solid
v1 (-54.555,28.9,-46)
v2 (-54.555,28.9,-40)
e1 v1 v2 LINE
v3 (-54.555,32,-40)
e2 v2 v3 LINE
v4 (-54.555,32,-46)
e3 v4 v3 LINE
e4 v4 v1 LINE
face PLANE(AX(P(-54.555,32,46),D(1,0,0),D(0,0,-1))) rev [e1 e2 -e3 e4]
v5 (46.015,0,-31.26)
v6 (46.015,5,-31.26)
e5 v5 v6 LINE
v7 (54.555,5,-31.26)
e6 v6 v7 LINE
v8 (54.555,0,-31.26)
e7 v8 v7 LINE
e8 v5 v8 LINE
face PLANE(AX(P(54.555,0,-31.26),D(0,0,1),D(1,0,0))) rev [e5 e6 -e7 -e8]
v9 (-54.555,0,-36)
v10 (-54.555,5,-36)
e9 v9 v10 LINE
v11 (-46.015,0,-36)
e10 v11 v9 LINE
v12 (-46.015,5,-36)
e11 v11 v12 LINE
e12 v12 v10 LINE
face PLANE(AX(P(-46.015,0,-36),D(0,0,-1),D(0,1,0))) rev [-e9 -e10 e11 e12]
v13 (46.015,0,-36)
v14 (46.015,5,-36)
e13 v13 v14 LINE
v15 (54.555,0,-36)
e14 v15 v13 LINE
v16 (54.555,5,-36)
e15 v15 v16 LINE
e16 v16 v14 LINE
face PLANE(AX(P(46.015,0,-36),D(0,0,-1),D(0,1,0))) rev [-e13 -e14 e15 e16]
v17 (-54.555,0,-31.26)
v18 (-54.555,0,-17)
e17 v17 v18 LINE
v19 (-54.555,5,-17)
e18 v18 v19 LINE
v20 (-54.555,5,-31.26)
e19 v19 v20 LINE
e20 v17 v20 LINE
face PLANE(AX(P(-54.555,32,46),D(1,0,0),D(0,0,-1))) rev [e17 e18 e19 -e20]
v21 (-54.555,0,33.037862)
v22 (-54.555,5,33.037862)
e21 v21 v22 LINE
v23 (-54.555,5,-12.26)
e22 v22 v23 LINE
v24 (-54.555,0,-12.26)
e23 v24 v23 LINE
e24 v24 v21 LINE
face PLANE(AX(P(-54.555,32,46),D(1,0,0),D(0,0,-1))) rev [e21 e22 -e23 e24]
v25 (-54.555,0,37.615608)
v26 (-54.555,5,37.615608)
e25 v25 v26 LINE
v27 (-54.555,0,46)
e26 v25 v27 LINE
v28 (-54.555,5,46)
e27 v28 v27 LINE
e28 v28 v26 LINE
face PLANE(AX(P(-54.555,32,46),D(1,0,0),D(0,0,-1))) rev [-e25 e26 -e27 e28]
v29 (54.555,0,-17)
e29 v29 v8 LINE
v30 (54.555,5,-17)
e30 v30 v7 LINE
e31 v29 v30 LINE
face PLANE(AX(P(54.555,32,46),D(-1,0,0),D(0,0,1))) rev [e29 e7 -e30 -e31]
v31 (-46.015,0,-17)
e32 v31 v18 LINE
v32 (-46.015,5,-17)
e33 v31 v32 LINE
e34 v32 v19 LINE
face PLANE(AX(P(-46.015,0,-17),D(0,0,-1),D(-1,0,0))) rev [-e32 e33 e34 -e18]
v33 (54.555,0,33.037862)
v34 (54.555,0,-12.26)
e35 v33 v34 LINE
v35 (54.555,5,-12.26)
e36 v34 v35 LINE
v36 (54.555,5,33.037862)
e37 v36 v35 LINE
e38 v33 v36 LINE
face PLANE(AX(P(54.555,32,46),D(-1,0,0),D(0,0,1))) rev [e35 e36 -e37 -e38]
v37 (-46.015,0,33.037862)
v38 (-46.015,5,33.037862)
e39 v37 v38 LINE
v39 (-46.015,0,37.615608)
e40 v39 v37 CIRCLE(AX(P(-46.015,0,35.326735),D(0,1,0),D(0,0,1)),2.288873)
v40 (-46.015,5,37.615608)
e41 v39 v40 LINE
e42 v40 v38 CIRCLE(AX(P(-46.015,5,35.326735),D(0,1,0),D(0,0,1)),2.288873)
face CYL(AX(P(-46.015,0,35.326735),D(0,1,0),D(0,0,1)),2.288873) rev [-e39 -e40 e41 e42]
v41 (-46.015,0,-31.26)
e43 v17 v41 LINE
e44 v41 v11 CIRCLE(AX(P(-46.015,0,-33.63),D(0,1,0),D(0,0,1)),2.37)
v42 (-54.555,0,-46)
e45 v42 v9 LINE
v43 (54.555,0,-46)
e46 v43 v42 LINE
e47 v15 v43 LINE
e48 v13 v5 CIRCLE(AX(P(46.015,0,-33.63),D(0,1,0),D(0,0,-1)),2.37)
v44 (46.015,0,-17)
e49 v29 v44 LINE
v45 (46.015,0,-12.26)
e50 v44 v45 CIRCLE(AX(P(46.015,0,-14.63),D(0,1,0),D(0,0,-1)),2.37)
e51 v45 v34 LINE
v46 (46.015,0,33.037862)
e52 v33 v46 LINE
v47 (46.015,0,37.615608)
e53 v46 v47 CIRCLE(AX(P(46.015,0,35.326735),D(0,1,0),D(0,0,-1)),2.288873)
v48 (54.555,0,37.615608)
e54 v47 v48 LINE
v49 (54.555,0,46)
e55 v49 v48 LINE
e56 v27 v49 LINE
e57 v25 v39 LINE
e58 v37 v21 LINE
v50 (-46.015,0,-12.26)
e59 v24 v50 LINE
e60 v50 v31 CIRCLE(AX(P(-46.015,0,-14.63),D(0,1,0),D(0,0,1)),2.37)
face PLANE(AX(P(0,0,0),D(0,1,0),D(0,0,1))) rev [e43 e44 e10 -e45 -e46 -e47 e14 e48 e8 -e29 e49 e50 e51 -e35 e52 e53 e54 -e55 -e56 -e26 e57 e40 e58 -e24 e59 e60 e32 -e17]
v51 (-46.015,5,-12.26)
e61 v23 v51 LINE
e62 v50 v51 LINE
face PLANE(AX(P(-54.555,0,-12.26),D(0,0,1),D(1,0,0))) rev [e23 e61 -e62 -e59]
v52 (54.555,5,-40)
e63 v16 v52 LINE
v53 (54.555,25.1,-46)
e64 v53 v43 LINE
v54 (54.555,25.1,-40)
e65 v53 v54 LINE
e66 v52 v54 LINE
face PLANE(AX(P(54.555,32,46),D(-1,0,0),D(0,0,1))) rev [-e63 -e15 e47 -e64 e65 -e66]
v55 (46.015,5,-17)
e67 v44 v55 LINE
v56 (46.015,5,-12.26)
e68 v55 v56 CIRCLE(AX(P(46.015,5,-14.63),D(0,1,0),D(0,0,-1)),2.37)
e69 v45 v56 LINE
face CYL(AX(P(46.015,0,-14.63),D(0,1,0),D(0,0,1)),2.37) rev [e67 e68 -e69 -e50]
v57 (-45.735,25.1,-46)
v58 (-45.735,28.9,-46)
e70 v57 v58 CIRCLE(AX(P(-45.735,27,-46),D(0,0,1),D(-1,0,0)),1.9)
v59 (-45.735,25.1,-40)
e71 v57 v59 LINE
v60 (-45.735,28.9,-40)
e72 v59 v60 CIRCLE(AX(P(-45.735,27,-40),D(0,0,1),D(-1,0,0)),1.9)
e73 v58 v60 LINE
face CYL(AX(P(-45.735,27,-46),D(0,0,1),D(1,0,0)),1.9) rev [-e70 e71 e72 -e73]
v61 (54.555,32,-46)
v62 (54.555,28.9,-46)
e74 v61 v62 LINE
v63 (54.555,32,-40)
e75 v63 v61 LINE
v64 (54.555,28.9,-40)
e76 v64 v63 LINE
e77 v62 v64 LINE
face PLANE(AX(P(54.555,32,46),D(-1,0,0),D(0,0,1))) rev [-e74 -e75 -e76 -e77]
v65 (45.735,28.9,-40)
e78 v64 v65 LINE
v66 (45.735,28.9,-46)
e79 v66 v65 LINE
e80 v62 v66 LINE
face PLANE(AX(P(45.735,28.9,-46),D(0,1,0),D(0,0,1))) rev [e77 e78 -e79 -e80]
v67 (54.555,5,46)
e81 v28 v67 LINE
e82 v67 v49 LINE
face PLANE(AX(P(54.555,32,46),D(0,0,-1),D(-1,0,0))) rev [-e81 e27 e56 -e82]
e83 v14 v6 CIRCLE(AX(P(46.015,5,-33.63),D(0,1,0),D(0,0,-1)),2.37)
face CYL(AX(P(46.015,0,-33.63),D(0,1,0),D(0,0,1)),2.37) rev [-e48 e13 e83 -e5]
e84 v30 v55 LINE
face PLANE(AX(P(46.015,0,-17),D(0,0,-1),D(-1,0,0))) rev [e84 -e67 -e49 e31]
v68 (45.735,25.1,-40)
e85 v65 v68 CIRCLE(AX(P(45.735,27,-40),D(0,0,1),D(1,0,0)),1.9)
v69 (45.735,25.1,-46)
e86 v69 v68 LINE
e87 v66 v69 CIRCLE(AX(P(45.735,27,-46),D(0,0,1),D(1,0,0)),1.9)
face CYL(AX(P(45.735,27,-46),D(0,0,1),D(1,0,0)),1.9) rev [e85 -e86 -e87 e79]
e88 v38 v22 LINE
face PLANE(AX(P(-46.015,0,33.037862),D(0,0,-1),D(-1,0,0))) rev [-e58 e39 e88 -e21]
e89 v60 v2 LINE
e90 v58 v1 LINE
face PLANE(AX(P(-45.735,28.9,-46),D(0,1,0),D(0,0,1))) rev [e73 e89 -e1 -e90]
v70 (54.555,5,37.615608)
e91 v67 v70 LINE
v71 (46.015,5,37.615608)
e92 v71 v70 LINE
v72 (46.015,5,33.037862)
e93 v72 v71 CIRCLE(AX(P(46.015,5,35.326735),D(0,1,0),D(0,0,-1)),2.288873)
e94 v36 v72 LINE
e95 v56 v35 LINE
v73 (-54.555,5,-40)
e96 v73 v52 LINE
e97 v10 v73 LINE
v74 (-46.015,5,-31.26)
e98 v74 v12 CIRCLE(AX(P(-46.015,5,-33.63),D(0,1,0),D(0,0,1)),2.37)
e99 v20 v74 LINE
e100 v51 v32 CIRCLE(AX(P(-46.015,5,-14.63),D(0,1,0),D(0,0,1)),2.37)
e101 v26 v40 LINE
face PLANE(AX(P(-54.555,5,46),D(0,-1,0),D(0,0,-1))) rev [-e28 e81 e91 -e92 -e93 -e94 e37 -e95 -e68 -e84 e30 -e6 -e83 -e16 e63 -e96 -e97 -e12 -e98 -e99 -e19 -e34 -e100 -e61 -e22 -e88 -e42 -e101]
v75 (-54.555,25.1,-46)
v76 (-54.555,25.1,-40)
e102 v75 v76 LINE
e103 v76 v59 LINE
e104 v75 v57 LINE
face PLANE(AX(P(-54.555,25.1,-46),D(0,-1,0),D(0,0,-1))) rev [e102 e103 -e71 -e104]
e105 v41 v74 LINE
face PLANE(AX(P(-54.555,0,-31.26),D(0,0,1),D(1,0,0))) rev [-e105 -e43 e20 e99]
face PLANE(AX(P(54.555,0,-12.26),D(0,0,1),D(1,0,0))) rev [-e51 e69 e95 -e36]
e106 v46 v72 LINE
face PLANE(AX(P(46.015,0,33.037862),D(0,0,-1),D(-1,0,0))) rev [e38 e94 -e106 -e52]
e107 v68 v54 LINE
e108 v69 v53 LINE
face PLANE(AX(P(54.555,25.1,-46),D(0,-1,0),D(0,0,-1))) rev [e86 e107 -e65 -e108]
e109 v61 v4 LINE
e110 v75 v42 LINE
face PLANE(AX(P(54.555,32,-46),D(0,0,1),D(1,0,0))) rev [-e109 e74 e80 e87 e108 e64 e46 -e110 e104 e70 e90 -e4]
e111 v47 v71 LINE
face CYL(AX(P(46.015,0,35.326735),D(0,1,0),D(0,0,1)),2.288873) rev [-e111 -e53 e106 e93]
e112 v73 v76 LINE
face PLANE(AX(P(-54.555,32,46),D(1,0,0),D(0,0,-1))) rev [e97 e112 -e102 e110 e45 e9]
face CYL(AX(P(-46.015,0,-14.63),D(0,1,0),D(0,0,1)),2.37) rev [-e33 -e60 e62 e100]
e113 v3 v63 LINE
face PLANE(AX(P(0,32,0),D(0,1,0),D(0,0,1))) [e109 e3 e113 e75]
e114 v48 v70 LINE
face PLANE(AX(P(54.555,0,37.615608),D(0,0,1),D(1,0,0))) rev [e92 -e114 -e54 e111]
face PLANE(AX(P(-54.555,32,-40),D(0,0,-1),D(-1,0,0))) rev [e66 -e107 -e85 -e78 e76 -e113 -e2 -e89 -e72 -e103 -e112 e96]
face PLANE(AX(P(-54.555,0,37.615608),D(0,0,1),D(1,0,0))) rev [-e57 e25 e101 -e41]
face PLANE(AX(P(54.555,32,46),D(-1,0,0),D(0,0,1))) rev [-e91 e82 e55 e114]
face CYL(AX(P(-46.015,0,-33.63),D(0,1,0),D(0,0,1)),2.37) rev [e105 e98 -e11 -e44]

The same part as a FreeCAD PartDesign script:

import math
import FreeCAD as App
import Part
import Sketcher
from FreeCAD import Vector

doc = App.newDocument("Part")
body = doc.addObject("PartDesign::Body", "Body")

# Sketch on XZ plane
sketch1 = body.newObject("Sketcher::SketchObject", "Sketch")
sketch1.AttachmentSupport = (doc.getObject("XZ_Plane"), [""])
sketch1.MapMode = "FlatFace"
sketch1.addGeometry([
    Part.LineSegment(Vector(-54.555, -46, 0), Vector(-54.555, 46, 0)),
    Part.LineSegment(Vector(-54.555, 46, 0), Vector(54.555, 46, 0)),
    Part.LineSegment(Vector(54.555, 46, 0), Vector(54.555, -46, 0)),
    Part.LineSegment(Vector(54.555, -46, 0), Vector(-54.555, -46, 0)),
], False)
sketch1.addConstraint([
    Sketcher.Constraint("Coincident", 0, 2, 1, 1),
    Sketcher.Constraint("Coincident", 1, 2, 2, 1),
    Sketcher.Constraint("Coincident", 2, 2, 3, 1),
    Sketcher.Constraint("Coincident", 3, 2, 0, 1),
    Sketcher.Constraint("Vertical", 0),
    Sketcher.Constraint("Horizontal", 1),
    Sketcher.Constraint("Vertical", 2),
    Sketcher.Constraint("Horizontal", 3),
    Sketcher.Constraint("Symmetric", 0, 2, 2, 2, -1, 1),
    Sketcher.Constraint("DistanceY", 0, 1, 0, 2, 92.0),
    Sketcher.Constraint("DistanceX", 1, 1, 1, 2, 109.11),
])
pad1 = body.newObject("PartDesign::Pad", "Pad")
pad1.Profile = sketch1
pad1.Length = 32
pad1.Reversed = True

# Sketch on YZ plane
sketch2 = body.newObject("Sketcher::SketchObject", "Sketch001")
sketch2.AttachmentSupport = (doc.getObject("YZ_Plane"), [""])
sketch2.MapMode = "FlatFace"
sketch2.AttachmentOffset = App.Placement(Vector(0, 0, 54.555), App.Rotation())
sketch2.addGeometry([
    Part.LineSegment(Vector(32, 46, 0), Vector(5, 46, 0)),
    Part.LineSegment(Vector(5, 46, 0), Vector(5, -40, 0)),
    Part.LineSegment(Vector(5, -40, 0), Vector(32, -40, 0)),
    Part.LineSegment(Vector(32, -40, 0), Vector(32, 46, 0)),
], False)
sketch2.addConstraint([
    Sketcher.Constraint("Coincident", 0, 2, 1, 1),
    Sketcher.Constraint("Coincident", 1, 2, 2, 1),
    Sketcher.Constraint("Coincident", 2, 2, 3, 1),
    Sketcher.Constraint("Coincident", 3, 2, 0, 1),
    Sketcher.Constraint("Horizontal", 0),
    Sketcher.Constraint("Vertical", 1),
    Sketcher.Constraint("Horizontal", 2),
    Sketcher.Constraint("Vertical", 3),
    Sketcher.Constraint("DistanceX", 0, 2, 0, 1, 27.0),
    Sketcher.Constraint("DistanceY", 1, 2, 1, 1, 86.0),
    Sketcher.Constraint("DistanceX", -1, 1, 0, 2, 5.0),
    Sketcher.Constraint("DistanceY", -1, 1, 0, 2, 46.0),
])
pocket1 = body.newObject("PartDesign::Pocket", "Pocket")
pocket1.Profile = sketch2
pocket1.Type = "ThroughAll"

# Sketch on XY plane
sketch3 = body.newObject("Sketcher::SketchObject", "Sketch002")
sketch3.AttachmentSupport = (doc.getObject("XY_Plane"), [""])
sketch3.MapMode = "FlatFace"
sketch3.AttachmentOffset = App.Placement(Vector(0, 0, -40), App.Rotation())
sketch3.addGeometry([
    Part.LineSegment(Vector(54.555, 28.9, 0), Vector(45.735, 28.9, 0)),  # 0
    Part.ArcOfCircle(Part.Circle(Vector(45.735, 27, 0), Vector(0, 0, 1), 1.9), math.radians(90), math.radians(270)),  # 1
    Part.LineSegment(Vector(45.735, 25.1, 0), Vector(54.555, 25.1, 0)),  # 2
    Part.LineSegment(Vector(54.555, 25.1, 0), Vector(54.555, 28.9, 0)),  # 3
    Part.LineSegment(Vector(-45.735, 28.9, 0), Vector(-54.555, 28.9, 0)),  # 4
    Part.LineSegment(Vector(-54.555, 28.9, 0), Vector(-54.555, 25.1, 0)),  # 5
    Part.LineSegment(Vector(-54.555, 25.1, 0), Vector(-45.735, 25.1, 0)),  # 6
    Part.ArcOfCircle(Part.Circle(Vector(-45.735, 27, 0), Vector(0, 0, 1), 1.9), math.radians(-90), math.radians(90)),  # 7
], False)
sketch3.addConstraint([
    Sketcher.Constraint("Tangent", 0, 2, 1, 1),
    Sketcher.Constraint("Tangent", 1, 2, 2, 1),
    Sketcher.Constraint("Coincident", 2, 2, 3, 1),
    Sketcher.Constraint("Coincident", 3, 2, 0, 1),
    Sketcher.Constraint("Coincident", 4, 2, 5, 1),
    Sketcher.Constraint("Coincident", 5, 2, 6, 1),
    Sketcher.Constraint("Tangent", 6, 2, 7, 1),
    Sketcher.Constraint("Tangent", 7, 2, 4, 1),
    Sketcher.Constraint("Horizontal", 0),
    Sketcher.Constraint("Horizontal", 2),
    Sketcher.Constraint("Vertical", 3),
    Sketcher.Constraint("Horizontal", 4),
    Sketcher.Constraint("Vertical", 5),
    Sketcher.Constraint("Horizontal", 6),
    Sketcher.Constraint("Equal", 1, 7),
    Sketcher.Constraint("Symmetric", 1, 3, 7, 3, -2),
    Sketcher.Constraint("Equal", 2, 4),
    Sketcher.Constraint("Radius", 1, 1.9),
    Sketcher.Constraint("DistanceY", -1, 1, 1, 3, 27.0),
    Sketcher.Constraint("DistanceX", 0, 2, 0, 1, 8.82),
    Sketcher.Constraint("DistanceX", 7, 3, 1, 3, 91.47),
])
pocket2 = body.newObject("PartDesign::Pocket", "Pocket001")
pocket2.Profile = sketch3
pocket2.Type = "ThroughAll"

# Sketch on XZ plane
sketch4 = body.newObject("Sketcher::SketchObject", "Sketch003")
sketch4.AttachmentSupport = (doc.getObject("XZ_Plane"), [""])
sketch4.MapMode = "FlatFace"
sketch4.AttachmentOffset = App.Placement(Vector(0, 0, -5), App.Rotation())
sketch4.addGeometry([
    Part.LineSegment(Vector(-46.015, -36, 0), Vector(-54.555, -36, 0)),  # 0
    Part.LineSegment(Vector(-54.555, -36, 0), Vector(-54.555, -31.26, 0)),  # 1
    Part.LineSegment(Vector(-54.555, -31.26, 0), Vector(-46.015, -31.26, 0)),  # 2
    Part.ArcOfCircle(Part.Circle(Vector(-46.015, -33.63, 0), Vector(0, 0, 1), 2.37), math.radians(-90), math.radians(90)),  # 3
    Part.LineSegment(Vector(-46.015, -17, 0), Vector(-54.555, -17, 0)),  # 4
    Part.LineSegment(Vector(-54.555, -17, 0), Vector(-54.555, -12.26, 0)),  # 5
    Part.LineSegment(Vector(-54.555, -12.26, 0), Vector(-46.015, -12.26, 0)),  # 6
    Part.ArcOfCircle(Part.Circle(Vector(-46.015, -14.63, 0), Vector(0, 0, 1), 2.37), math.radians(-90), math.radians(90)),  # 7
    Part.LineSegment(Vector(-46.015, 33.037862, 0), Vector(-54.555, 33.037862, 0)),  # 8
    Part.LineSegment(Vector(-54.555, 33.037862, 0), Vector(-54.555, 37.615608, 0)),  # 9
    Part.LineSegment(Vector(-54.555, 37.615608, 0), Vector(-46.015, 37.615608, 0)),  # 10
    Part.ArcOfCircle(Part.Circle(Vector(-46.015, 35.326735, 0), Vector(0, 0, 1), 2.288873), math.radians(-90), math.radians(90)),  # 11
    Part.LineSegment(Vector(46.015, 37.615608, 0), Vector(54.555, 37.615608, 0)),  # 12
    Part.LineSegment(Vector(54.555, 37.615608, 0), Vector(54.555, 33.037862, 0)),  # 13
    Part.LineSegment(Vector(54.555, 33.037862, 0), Vector(46.015, 33.037862, 0)),  # 14
    Part.ArcOfCircle(Part.Circle(Vector(46.015, 35.326735, 0), Vector(0, 0, 1), 2.288873), math.radians(90), math.radians(270)),  # 15
    Part.LineSegment(Vector(54.555, -12.26, 0), Vector(54.555, -17, 0)),  # 16
    Part.LineSegment(Vector(54.555, -17, 0), Vector(46.015, -17, 0)),  # 17
    Part.ArcOfCircle(Part.Circle(Vector(46.015, -14.63, 0), Vector(0, 0, 1), 2.37), math.radians(90), math.radians(270)),  # 18
    Part.LineSegment(Vector(46.015, -12.26, 0), Vector(54.555, -12.26, 0)),  # 19
    Part.LineSegment(Vector(46.015, -31.26, 0), Vector(54.555, -31.26, 0)),  # 20
    Part.LineSegment(Vector(54.555, -31.26, 0), Vector(54.555, -36, 0)),  # 21
    Part.LineSegment(Vector(54.555, -36, 0), Vector(46.015, -36, 0)),  # 22
    Part.ArcOfCircle(Part.Circle(Vector(46.015, -33.63, 0), Vector(0, 0, 1), 2.37), math.radians(90), math.radians(270)),  # 23
], False)
sketch4.addConstraint([
    Sketcher.Constraint("Coincident", 0, 2, 1, 1),
    Sketcher.Constraint("Coincident", 1, 2, 2, 1),
    Sketcher.Constraint("Tangent", 2, 2, 3, 2),
    Sketcher.Constraint("Tangent", 3, 1, 0, 1),
    Sketcher.Constraint("Coincident", 4, 2, 5, 1),
    Sketcher.Constraint("Coincident", 5, 2, 6, 1),
    Sketcher.Constraint("Tangent", 6, 2, 7, 2),
    Sketcher.Constraint("Tangent", 7, 1, 4, 1),
    Sketcher.Constraint("Coincident", 8, 2, 9, 1),
    Sketcher.Constraint("Coincident", 9, 2, 10, 1),
    Sketcher.Constraint("Tangent", 10, 2, 11, 2),
    Sketcher.Constraint("Tangent", 11, 1, 8, 1),
    Sketcher.Constraint("Coincident", 12, 2, 13, 1),
    Sketcher.Constraint("Coincident", 13, 2, 14, 1),
    Sketcher.Constraint("Tangent", 14, 2, 15, 2),
    Sketcher.Constraint("Tangent", 15, 1, 12, 1),
    Sketcher.Constraint("Coincident", 16, 2, 17, 1),
    Sketcher.Constraint("Tangent", 17, 2, 18, 2),
    Sketcher.Constraint("Tangent", 18, 1, 19, 1),
    Sketcher.Constraint("Coincident", 19, 2, 16, 1),
    Sketcher.Constraint("Coincident", 20, 2, 21, 1),
    Sketcher.Constraint("Coincident", 21, 2, 22, 1),
    Sketcher.Constraint("Tangent", 22, 2, 23, 2),
    Sketcher.Constraint("Tangent", 23, 1, 20, 1),
    Sketcher.Constraint("Horizontal", 0),
    Sketcher.Constraint("Vertical", 1),
    Sketcher.Constraint("Horizontal", 2),
    Sketcher.Constraint("Horizontal", 4),
    Sketcher.Constraint("Vertical", 5),
    Sketcher.Constraint("Horizontal", 6),
    Sketcher.Constraint("Horizontal", 8),
    Sketcher.Constraint("Vertical", 9),
    Sketcher.Constraint("Horizontal", 10),
    Sketcher.Constraint("Horizontal", 12),
    Sketcher.Constraint("Vertical", 13),
    Sketcher.Constraint("Horizontal", 14),
    Sketcher.Constraint("Vertical", 16),
    Sketcher.Constraint("Horizontal", 17),
    Sketcher.Constraint("Horizontal", 19),
    Sketcher.Constraint("Horizontal", 20),
    Sketcher.Constraint("Vertical", 21),
    Sketcher.Constraint("Horizontal", 22),
    Sketcher.Constraint("Equal", 3, 7),
    Sketcher.Constraint("Equal", 11, 15),
    Sketcher.Constraint("Equal", 7, 18),
    Sketcher.Constraint("Equal", 18, 23),
    Sketcher.Constraint("Symmetric", 11, 3, 15, 3, -2),
    Sketcher.Constraint("Symmetric", 7, 3, 18, 3, -2),
    Sketcher.Constraint("Symmetric", 3, 3, 23, 3, -2),
    Sketcher.Constraint("Vertical", 3, 3, 7, 3),
    Sketcher.Constraint("Vertical", 7, 3, 11, 3),
    Sketcher.Constraint("Vertical", 1, 2, 4, 2),
    Sketcher.Constraint("Vertical", 5, 2, 8, 2),
    Sketcher.Constraint("Vertical", 13, 2, 16, 2),
    Sketcher.Constraint("Vertical", 19, 2, 20, 2),
    Sketcher.Constraint("Equal", 10, 12),
    Sketcher.Constraint("Radius", 3, 2.37),
    Sketcher.Constraint("DistanceY", 0, 2, -1, 1, 36.0),
    Sketcher.Constraint("DistanceY", 4, 2, -1, 1, 17.0),
    Sketcher.Constraint("DistanceX", 0, 2, 0, 1, 8.54),
    Sketcher.Constraint("DistanceX", 11, 3, 15, 3, 92.03),
    Sketcher.Constraint("Radius", 11, 2.288873),
    Sketcher.Constraint("DistanceY", -1, 1, 8, 2, 33.037862),
])
pocket3 = body.newObject("PartDesign::Pocket", "Pocket002")
pocket3.Profile = sketch4
pocket3.Type = "ThroughAll"
pocket3.Reversed = True

doc.recompute()
